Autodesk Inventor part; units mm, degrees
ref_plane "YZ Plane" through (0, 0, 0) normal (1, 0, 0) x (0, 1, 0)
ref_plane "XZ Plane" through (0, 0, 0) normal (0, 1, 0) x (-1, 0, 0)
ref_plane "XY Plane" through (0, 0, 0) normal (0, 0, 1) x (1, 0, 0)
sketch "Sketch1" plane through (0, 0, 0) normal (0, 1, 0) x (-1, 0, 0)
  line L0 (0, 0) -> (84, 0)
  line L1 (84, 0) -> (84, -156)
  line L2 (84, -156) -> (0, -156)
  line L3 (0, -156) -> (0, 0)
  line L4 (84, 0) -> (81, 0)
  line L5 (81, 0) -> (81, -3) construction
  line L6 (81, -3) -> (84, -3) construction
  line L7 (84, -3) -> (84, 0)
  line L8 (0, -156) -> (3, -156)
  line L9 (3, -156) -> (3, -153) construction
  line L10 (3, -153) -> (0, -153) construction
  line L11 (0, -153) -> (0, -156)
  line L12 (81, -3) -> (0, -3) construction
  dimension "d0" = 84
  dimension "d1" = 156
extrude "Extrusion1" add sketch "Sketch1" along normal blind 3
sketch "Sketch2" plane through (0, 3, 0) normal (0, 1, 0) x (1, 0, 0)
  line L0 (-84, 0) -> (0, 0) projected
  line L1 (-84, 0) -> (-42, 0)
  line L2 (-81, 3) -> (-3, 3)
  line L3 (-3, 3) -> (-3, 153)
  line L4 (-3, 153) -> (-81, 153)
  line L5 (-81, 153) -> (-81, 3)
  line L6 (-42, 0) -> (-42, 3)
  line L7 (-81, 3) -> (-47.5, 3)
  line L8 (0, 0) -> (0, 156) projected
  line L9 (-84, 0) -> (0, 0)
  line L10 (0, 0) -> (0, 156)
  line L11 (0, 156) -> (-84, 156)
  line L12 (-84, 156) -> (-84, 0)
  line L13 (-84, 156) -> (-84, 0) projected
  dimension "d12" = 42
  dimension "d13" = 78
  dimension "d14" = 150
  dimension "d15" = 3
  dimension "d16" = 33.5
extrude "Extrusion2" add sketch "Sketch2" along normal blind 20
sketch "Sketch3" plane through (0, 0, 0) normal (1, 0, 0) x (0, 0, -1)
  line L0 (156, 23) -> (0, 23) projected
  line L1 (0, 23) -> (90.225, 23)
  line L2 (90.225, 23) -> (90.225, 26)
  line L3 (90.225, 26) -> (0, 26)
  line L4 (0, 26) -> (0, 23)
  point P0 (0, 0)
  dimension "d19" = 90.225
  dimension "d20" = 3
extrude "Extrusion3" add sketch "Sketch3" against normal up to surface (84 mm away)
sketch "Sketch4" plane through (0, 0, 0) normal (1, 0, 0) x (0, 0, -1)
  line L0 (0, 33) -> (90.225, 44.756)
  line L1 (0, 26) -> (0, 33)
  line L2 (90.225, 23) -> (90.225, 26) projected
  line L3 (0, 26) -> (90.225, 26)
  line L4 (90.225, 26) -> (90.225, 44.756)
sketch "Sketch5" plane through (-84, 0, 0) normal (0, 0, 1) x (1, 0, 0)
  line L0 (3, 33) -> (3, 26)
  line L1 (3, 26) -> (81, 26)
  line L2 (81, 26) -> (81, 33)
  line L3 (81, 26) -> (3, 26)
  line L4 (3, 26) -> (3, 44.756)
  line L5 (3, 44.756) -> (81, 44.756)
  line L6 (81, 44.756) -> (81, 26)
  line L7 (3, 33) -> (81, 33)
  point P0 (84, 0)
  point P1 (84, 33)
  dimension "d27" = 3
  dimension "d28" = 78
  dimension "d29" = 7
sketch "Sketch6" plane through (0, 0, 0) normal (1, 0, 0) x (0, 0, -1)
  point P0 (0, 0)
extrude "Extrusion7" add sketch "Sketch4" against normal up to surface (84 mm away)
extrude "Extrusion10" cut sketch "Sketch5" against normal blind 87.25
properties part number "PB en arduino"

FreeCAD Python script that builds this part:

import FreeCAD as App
import Part
import Sketcher
from FreeCAD import Vector

doc = App.newDocument("Part")
params = doc.addObject("Spreadsheet::Sheet", "Params")
for row, (alias, value) in enumerate([
    ("sketch1_width", "84 mm"),
    ("sketch1_height", "156 mm"),
    ("pad1_length", "3 mm"),
    ("sketch2_width", "42 mm"),
    ("sketch2_width2", "78 mm"),
    ("sketch2_height", "150 mm"),
    ("pad2_length", "20 mm"),
    ("sketch3_width", "3 mm"),
    ("pad3_length", "84 mm"),
    ("sketch4_width", "7 mm"),
    ("pad4_length", "84 mm"),
    ("sketch5_width", "78 mm"),
    ("pocket1_length", "87.25 mm"),
], start=1):
    params.set(f"A{row}", alias)
    params.set(f"B{row}", "=" + value)
    params.setAlias(f"B{row}", alias)

body = doc.addObject("PartDesign::Body", "Body")

sketch1 = doc.addObject("Sketcher::SketchObject", "Sketch")
body.addObject(sketch1)
sketch1.AttachmentSupport = (doc.XZ_Plane, [""])
sketch1.MapMode = "FlatFace"
sketch1.addGeometry([
    Part.LineSegment(Vector(-84, 0, 0), Vector(0, 0, 0)),
    Part.LineSegment(Vector(0, 0, 0), Vector(0, -156, 0)),
    Part.LineSegment(Vector(0, -156, 0), Vector(-84, -156, 0)),
    Part.LineSegment(Vector(-84, -156, 0), Vector(-84, 0, 0)),
], False)
sketch1.addConstraint([
    Sketcher.Constraint("Coincident", 0, 2, 1, 1),
    Sketcher.Constraint("Coincident", 1, 2, 2, 1),
    Sketcher.Constraint("Coincident", 2, 2, 3, 1),
    Sketcher.Constraint("Coincident", 3, 2, 0, 1),
    Sketcher.Constraint("Horizontal", 0),
    Sketcher.Constraint("Vertical", 1),
    Sketcher.Constraint("Horizontal", 2),
    Sketcher.Constraint("Vertical", 3),
    Sketcher.Constraint("Coincident", 0, 2, -1, 1),
    Sketcher.Constraint("DistanceX", 0, 1, 0, 2, 84.0),
    Sketcher.Constraint("DistanceY", 1, 2, 1, 1, 156.0),
])
sketch1.setExpression("Constraints[9]", "Params.sketch1_width")
sketch1.setExpression("Constraints[10]", "Params.sketch1_height")
pad1 = doc.addObject("PartDesign::Pad", "Pad")
body.addObject(pad1)
pad1.Profile = sketch1
pad1.setExpression("Length", "Params.pad1_length")
pad1.Reversed = True

sketch2 = doc.addObject("Sketcher::SketchObject", "Sketch001")
body.addObject(sketch2)
sketch2.AttachmentSupport = (doc.XZ_Plane, [""])
sketch2.MapMode = "FlatFace"
sketch2.AttachmentOffset = App.Placement(Vector(0, 0, -3), App.Rotation())
sketch2.addGeometry([
    Part.LineSegment(Vector(-84, -156, 0), Vector(-84, 0, 0)),
    Part.LineSegment(Vector(-84, 0, 0), Vector(-42, 0, 0)),
    Part.LineSegment(Vector(-42, 0, 0), Vector(0, 0, 0)),
    Part.LineSegment(Vector(0, 0, 0), Vector(0, -156, 0)),
    Part.LineSegment(Vector(0, -156, 0), Vector(-84, -156, 0)),
    Part.LineSegment(Vector(-3, -3, 0), Vector(-42, -3, 0)),
    Part.LineSegment(Vector(-42, -3, 0), Vector(-81, -3, 0)),
    Part.LineSegment(Vector(-81, -3, 0), Vector(-81, -153, 0)),
    Part.LineSegment(Vector(-81, -153, 0), Vector(-3, -153, 0)),
    Part.LineSegment(Vector(-3, -153, 0), Vector(-3, -3, 0)),
], False)
sketch2.addConstraint([
    Sketcher.Constraint("Coincident", 0, 2, 1, 1),
    Sketcher.Constraint("Coincident", 1, 2, 2, 1),
    Sketcher.Constraint("Coincident", 2, 2, 3, 1),
    Sketcher.Constraint("Coincident", 3, 2, 4, 1),
    Sketcher.Constraint("Coincident", 4, 2, 0, 1),
    Sketcher.Constraint("Coincident", 5, 2, 6, 1),
    Sketcher.Constraint("Coincident", 6, 2, 7, 1),
    Sketcher.Constraint("Coincident", 7, 2, 8, 1),
    Sketcher.Constraint("Coincident", 8, 2, 9, 1),
    Sketcher.Constraint("Coincident", 9, 2, 5, 1),
    Sketcher.Constraint("Vertical", 0),
    Sketcher.Constraint("Horizontal", 1),
    Sketcher.Constraint("Horizontal", 2),
    Sketcher.Constraint("Vertical", 3),
    Sketcher.Constraint("Horizontal", 4),
    Sketcher.Constraint("Horizontal", 5),
    Sketcher.Constraint("Horizontal", 6),
    Sketcher.Constraint("Vertical", 7),
    Sketcher.Constraint("Horizontal", 8),
    Sketcher.Constraint("Vertical", 9),
    Sketcher.Constraint("Coincident", 2, 2, -1, 1),
    Sketcher.Constraint("Vertical", 1, 2, 5, 2),
    Sketcher.Constraint("Equal", 1, 2),
    Sketcher.Constraint("Equal", 5, 6),
    Sketcher.Constraint("DistanceX", 1, 1, 1, 2, 42.0),
    Sketcher.Constraint("DistanceX", 8, 1, 8, 2, 78.0),
    Sketcher.Constraint("DistanceY", 7, 2, 7, 1, 150.0),
    Sketcher.Constraint("DistanceY", 5, 2, -1, 1, 3.0),
    Sketcher.Constraint("DistanceY", 4, 2, 7, 2, 3.0),
])
sketch2.setExpression("Constraints[24]", "Params.sketch2_width")
sketch2.setExpression("Constraints[25]", "Params.sketch2_width2")
sketch2.setExpression("Constraints[26]", "Params.sketch2_height")
pad2 = doc.addObject("PartDesign::Pad", "Pad001")
body.addObject(pad2)
pad2.Profile = sketch2
pad2.setExpression("Length", "Params.pad2_length")
pad2.Reversed = True

sketch3 = doc.addObject("Sketcher::SketchObject", "Sketch002")
body.addObject(sketch3)
sketch3.AttachmentSupport = (doc.YZ_Plane, [""])
sketch3.MapMode = "FlatFace"
sketch3.addGeometry([
    Part.LineSegment(Vector(23, 0, 0), Vector(23, -90.2, 0)),
    Part.LineSegment(Vector(23, -90.2, 0), Vector(26, -90.2, 0)),
    Part.LineSegment(Vector(26, -90.2, 0), Vector(26, 0, 0)),
    Part.LineSegment(Vector(26, 0, 0), Vector(23, 0, 0)),
], False)
sketch3.addConstraint([
    Sketcher.Constraint("Coincident", 0, 2, 1, 1),
    Sketcher.Constraint("Coincident", 1, 2, 2, 1),
    Sketcher.Constraint("Coincident", 2, 2, 3, 1),
    Sketcher.Constraint("Coincident", 3, 2, 0, 1),
    Sketcher.Constraint("Vertical", 0),
    Sketcher.Constraint("Horizontal", 1),
    Sketcher.Constraint("Vertical", 2),
    Sketcher.Constraint("Horizontal", 3),
    Sketcher.Constraint("PointOnObject", 2, 2, -1),
    Sketcher.Constraint("DistanceX", 1, 1, 1, 2, 3.0),
    Sketcher.Constraint("DistanceY", 0, 2, 0, 1, 90.225),
    Sketcher.Constraint("DistanceX", -1, 1, 0, 2, 23.0),
])
sketch3.setExpression("Constraints[9]", "Params.sketch3_width")
pad3 = doc.addObject("PartDesign::Pad", "Pad002")
body.addObject(pad3)
pad3.Profile = sketch3
pad3.setExpression("Length", "Params.pad3_length")
pad3.Reversed = True

sketch4 = doc.addObject("Sketcher::SketchObject", "Sketch003")
body.addObject(sketch4)
sketch4.AttachmentSupport = (doc.YZ_Plane, [""])
sketch4.MapMode = "FlatFace"
sketch4.addGeometry([
    Part.LineSegment(Vector(45, -90, 0), Vector(33, 0, 0)),
    Part.LineSegment(Vector(33, 0, 0), Vector(26, 0, 0)),
    Part.LineSegment(Vector(26, 0, 0), Vector(26, -90, 0)),
    Part.LineSegment(Vector(26, -90, 0), Vector(45, -90, 0)),
], False)
sketch4.addConstraint([
    Sketcher.Constraint("Coincident", 0, 2, 1, 1),
    Sketcher.Constraint("Coincident", 1, 2, 2, 1),
    Sketcher.Constraint("Coincident", 2, 2, 3, 1),
    Sketcher.Constraint("Coincident", 3, 2, 0, 1),
    Sketcher.Constraint("Horizontal", 1),
    Sketcher.Constraint("Vertical", 2),
    Sketcher.Constraint("Horizontal", 3),
    Sketcher.Constraint("PointOnObject", 0, 2, -1),
    Sketcher.Constraint("DistanceX", 1, 2, 1, 1, 7.0),
    Sketcher.Constraint("DistanceX", -1, 1, 0, 2, 33.0),
    Sketcher.Constraint("DistanceX", 3, 1, 3, 2, 18.756),
    Sketcher.Constraint("DistanceY", 2, 2, 2, 1, 90.225),
])
sketch4.setExpression("Constraints[8]", "Params.sketch4_width")
pad4 = doc.addObject("PartDesign::Pad", "Pad003")
body.addObject(pad4)
pad4.Profile = sketch4
pad4.setExpression("Length", "Params.pad4_length")
pad4.Reversed = True

sketch5 = doc.addObject("Sketcher::SketchObject", "Sketch004")
body.addObject(sketch5)
sketch5.AttachmentSupport = (doc.XY_Plane, [""])
sketch5.MapMode = "FlatFace"
sketch5.addGeometry([
    Part.LineSegment(Vector(-3, 26, 0), Vector(-3, 45, 0)),
    Part.LineSegment(Vector(-3, 45, 0), Vector(-81, 45, 0)),
    Part.LineSegment(Vector(-81, 45, 0), Vector(-81, 26, 0)),
    Part.LineSegment(Vector(-81, 26, 0), Vector(-3, 26, 0)),
], False)
sketch5.addConstraint([
    Sketcher.Constraint("Coincident", 0, 2, 1, 1),
    Sketcher.Constraint("Coincident", 1, 2, 2, 1),
    Sketcher.Constraint("Coincident", 2, 2, 3, 1),
    Sketcher.Constraint("Coincident", 3, 2, 0, 1),
    Sketcher.Constraint("Vertical", 0),
    Sketcher.Constraint("Horizontal", 1),
    Sketcher.Constraint("Vertical", 2),
    Sketcher.Constraint("Horizontal", 3),
    Sketcher.Constraint("DistanceX", 1, 2, 1, 1, 78.0),
    Sketcher.Constraint("DistanceX", 0, 2, -1, 1, 3.0),
    Sketcher.Constraint("DistanceY", -1, 1, 2, 2, 26.0),
    Sketcher.Constraint("DistanceY", 0, 1, 0, 2, 18.756),
])
sketch5.setExpression("Constraints[8]", "Params.sketch5_width")
pocket1 = doc.addObject("PartDesign::Pocket", "Pocket")
body.addObject(pocket1)
pocket1.Profile = sketch5
pocket1.setExpression("Length", "Params.pocket1_length")

doc.recompute()
